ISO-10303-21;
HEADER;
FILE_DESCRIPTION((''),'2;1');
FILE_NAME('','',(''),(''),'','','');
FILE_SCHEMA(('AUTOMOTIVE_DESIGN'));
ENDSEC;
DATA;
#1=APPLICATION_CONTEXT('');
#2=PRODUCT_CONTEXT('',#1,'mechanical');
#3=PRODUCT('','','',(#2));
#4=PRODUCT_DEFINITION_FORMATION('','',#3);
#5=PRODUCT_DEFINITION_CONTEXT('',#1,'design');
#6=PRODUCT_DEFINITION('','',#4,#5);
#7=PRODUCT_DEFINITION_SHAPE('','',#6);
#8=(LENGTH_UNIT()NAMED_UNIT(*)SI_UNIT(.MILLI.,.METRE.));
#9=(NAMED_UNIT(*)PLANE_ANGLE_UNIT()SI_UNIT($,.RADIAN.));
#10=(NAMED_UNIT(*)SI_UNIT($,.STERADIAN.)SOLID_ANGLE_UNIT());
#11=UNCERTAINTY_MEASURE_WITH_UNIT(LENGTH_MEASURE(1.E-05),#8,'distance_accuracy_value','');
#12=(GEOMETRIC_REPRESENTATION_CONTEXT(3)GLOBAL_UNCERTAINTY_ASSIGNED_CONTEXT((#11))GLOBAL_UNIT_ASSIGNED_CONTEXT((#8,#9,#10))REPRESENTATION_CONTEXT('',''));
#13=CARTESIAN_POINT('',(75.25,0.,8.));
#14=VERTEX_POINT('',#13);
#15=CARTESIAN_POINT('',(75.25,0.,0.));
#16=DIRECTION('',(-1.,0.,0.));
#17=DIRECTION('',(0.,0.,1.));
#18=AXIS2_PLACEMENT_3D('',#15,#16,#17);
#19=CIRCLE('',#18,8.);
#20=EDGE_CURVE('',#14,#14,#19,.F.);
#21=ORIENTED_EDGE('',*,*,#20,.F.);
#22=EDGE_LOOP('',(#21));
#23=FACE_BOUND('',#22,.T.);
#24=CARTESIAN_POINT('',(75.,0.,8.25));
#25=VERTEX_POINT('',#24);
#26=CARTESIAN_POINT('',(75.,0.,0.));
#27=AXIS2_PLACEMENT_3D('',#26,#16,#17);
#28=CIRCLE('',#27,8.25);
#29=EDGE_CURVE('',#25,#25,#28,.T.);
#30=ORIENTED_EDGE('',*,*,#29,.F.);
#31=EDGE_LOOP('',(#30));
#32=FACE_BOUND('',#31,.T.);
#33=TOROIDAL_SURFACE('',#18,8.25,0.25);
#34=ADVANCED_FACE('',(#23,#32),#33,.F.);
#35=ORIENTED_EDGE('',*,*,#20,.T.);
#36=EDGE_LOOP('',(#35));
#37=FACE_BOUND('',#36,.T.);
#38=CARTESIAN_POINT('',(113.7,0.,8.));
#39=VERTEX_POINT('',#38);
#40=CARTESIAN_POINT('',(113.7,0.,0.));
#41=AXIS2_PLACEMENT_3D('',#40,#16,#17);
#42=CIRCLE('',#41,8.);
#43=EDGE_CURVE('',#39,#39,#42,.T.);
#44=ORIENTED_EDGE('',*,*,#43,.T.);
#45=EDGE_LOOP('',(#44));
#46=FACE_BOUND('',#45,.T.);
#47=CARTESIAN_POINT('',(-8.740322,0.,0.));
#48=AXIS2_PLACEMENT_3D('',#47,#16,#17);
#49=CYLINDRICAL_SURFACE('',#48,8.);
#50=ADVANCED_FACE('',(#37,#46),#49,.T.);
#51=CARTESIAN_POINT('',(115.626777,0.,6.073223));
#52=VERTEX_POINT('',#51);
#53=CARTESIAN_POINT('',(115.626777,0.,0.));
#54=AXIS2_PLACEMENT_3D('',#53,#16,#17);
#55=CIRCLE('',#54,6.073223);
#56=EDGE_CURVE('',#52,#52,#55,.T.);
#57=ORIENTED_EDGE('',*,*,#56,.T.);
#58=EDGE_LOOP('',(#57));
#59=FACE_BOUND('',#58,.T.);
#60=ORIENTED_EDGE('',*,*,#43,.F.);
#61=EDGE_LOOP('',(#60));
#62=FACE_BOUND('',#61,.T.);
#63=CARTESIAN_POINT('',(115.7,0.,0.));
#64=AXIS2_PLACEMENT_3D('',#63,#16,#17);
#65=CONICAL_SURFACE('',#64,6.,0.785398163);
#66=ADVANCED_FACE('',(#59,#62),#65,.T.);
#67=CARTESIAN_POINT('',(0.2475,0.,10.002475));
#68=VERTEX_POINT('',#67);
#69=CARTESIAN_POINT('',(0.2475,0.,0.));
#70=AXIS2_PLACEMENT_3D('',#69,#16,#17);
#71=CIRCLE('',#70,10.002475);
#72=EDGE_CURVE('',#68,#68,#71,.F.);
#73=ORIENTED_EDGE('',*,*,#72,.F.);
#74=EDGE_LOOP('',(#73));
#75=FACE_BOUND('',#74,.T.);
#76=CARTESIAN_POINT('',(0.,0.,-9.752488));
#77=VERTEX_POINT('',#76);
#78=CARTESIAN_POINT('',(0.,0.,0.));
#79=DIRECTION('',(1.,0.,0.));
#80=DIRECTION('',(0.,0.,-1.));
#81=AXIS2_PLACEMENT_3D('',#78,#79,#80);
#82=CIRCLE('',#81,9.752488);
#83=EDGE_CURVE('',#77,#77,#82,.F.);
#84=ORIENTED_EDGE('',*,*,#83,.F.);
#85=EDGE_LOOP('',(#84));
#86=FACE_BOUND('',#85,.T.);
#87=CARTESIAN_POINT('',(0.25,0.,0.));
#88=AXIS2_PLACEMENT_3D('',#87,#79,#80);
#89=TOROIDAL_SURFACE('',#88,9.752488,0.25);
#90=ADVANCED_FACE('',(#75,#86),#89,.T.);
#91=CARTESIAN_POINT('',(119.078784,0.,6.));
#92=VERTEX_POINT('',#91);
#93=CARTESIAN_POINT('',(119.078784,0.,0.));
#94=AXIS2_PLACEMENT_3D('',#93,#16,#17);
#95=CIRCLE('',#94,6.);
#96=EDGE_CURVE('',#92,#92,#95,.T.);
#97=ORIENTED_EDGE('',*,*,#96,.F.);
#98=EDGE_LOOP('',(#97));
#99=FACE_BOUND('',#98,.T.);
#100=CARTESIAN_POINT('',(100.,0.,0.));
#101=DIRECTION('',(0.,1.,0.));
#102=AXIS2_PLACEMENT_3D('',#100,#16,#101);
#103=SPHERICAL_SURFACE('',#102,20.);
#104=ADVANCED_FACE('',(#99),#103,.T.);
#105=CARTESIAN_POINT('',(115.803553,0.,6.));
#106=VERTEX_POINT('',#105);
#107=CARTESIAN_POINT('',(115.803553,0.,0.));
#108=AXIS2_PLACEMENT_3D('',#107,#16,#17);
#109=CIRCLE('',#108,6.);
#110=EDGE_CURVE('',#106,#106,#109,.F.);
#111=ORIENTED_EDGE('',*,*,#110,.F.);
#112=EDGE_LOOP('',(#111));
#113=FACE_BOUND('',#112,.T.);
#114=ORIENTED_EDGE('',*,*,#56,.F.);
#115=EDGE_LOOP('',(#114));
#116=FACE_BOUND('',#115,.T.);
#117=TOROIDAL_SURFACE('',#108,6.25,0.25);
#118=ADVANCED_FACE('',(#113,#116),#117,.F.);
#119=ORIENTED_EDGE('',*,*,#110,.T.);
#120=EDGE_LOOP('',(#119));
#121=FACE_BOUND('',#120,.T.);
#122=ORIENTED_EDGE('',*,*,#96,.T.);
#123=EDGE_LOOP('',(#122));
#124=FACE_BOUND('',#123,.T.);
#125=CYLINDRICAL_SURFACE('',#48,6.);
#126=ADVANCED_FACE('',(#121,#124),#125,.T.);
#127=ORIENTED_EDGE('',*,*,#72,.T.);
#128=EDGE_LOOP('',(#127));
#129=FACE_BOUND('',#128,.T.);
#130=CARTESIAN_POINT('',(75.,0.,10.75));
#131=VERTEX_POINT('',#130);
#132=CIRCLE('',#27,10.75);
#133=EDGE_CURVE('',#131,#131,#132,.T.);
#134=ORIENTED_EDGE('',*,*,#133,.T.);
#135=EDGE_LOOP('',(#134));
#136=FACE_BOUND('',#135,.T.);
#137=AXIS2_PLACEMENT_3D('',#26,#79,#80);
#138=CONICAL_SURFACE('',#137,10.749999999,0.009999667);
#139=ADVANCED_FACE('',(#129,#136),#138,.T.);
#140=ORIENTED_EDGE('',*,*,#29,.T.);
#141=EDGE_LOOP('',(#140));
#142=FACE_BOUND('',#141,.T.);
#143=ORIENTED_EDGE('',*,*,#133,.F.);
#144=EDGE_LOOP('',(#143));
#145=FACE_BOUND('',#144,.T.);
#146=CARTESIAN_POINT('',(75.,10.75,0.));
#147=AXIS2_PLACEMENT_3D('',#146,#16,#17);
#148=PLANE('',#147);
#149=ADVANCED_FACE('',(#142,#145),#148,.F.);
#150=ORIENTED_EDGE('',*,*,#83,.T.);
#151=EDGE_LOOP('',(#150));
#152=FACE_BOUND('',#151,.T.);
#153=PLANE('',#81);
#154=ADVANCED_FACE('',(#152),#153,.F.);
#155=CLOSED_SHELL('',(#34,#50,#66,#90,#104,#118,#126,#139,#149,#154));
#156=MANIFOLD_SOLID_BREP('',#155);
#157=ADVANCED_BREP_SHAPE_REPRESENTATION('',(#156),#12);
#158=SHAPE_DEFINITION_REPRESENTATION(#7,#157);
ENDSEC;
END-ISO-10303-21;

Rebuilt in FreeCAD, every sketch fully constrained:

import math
import FreeCAD as App
import Part
import Sketcher
Q = App.Units.Quantity


def edges_at(feature, points):
    """Names of the edges that pass closest to the given points."""
    edges = feature.Shape.Edges
    near = lambda p: min(range(len(edges)), key=lambda i: edges[i].distToShape(Part.Vertex(*p))[0])
    return sorted({f"Edge{near(p) + 1}" for p in points})

doc = App.newDocument("Part")
body = doc.addObject("PartDesign::Body", "Body")

# Sketch on XY plane
sketch1 = body.newObject("Sketcher::SketchObject", "Sketch")
sketch1.AttachmentSupport = (doc.getObject("XY_Plane"), [""])
sketch1.MapMode = "FlatFace"
sketch1.addGeometry([
    Part.LineSegment(App.Vector(0, 10, 0), App.Vector(0, 0, 0)),  # 0
    Part.LineSegment(App.Vector(0, 0, 0), App.Vector(120, 0, 0)),  # 1
    Part.ArcOfCircle(Part.Circle(App.Vector(100, 0, 0), App.Vector(0, 0, 1), 20), math.radians(0), math.radians(17.457603)),  # 2
    Part.LineSegment(App.Vector(119.078784, 6, 0), App.Vector(115.7, 6, 0)),  # 3
    Part.LineSegment(App.Vector(115.7, 6, 0), App.Vector(113.7, 8, 0)),  # 4
    Part.LineSegment(App.Vector(113.7, 8, 0), App.Vector(75, 8, 0)),  # 5
    Part.LineSegment(App.Vector(75, 8, 0), App.Vector(75, 10.75, 0)),  # 6
    Part.LineSegment(App.Vector(75, 10.75, 0), App.Vector(0, 10, 0)),  # 7
], False)
sketch1.addConstraint([
    Sketcher.Constraint("Coincident", 0, 2, 1, 1),
    Sketcher.Constraint("Coincident", 1, 2, 2, 1),
    Sketcher.Constraint("Coincident", 2, 2, 3, 1),
    Sketcher.Constraint("Coincident", 3, 2, 4, 1),
    Sketcher.Constraint("Coincident", 4, 2, 5, 1),
    Sketcher.Constraint("Coincident", 5, 2, 6, 1),
    Sketcher.Constraint("Coincident", 6, 2, 7, 1),
    Sketcher.Constraint("Coincident", 7, 2, 0, 1),
    Sketcher.Constraint("Vertical", 0),
    Sketcher.Constraint("Horizontal", 1),
    Sketcher.Constraint("Horizontal", 3),
    Sketcher.Constraint("Horizontal", 5),
    Sketcher.Constraint("Vertical", 6),
    Sketcher.Constraint("Coincident", 0, 2, -1, 1),
    Sketcher.Constraint("PointOnObject", 2, 3, -1),
    Sketcher.Constraint("Radius", 2, 20.0),
    Sketcher.Constraint("DistanceX", 1, 1, 1, 2, 120.0),
    Sketcher.Constraint("DistanceY", 0, 2, 0, 1, 10.0),
    Sketcher.Constraint("Angle", 4, Q("135 deg")),
    Sketcher.Constraint("DistanceX", 5, 2, 5, 1, 38.7),
    Sketcher.Constraint("DistanceY", -1, 1, 2, 2, 6.0),
    Sketcher.Constraint("DistanceY", -1, 1, 4, 2, 8.0),
    Sketcher.Constraint("DistanceX", -1, 1, 5, 2, 75.0),
    Sketcher.Constraint("DistanceY", 6, 1, 6, 2, 2.75),
])
revolution = body.newObject("PartDesign::Revolution", "Revolution")
revolution.Profile = sketch1
revolution.ReferenceAxis = (sketch1, ["H_Axis"])
revolution.Angle = 360
doc.recompute()

fillet = body.newObject("PartDesign::Fillet", "Fillet")
fillet.Base = (revolution, edges_at(revolution, [(0, 0, -10), (75, 0, -8), (115.7, 0, -6)]))
fillet.Radius = 0.25

doc.recompute()
